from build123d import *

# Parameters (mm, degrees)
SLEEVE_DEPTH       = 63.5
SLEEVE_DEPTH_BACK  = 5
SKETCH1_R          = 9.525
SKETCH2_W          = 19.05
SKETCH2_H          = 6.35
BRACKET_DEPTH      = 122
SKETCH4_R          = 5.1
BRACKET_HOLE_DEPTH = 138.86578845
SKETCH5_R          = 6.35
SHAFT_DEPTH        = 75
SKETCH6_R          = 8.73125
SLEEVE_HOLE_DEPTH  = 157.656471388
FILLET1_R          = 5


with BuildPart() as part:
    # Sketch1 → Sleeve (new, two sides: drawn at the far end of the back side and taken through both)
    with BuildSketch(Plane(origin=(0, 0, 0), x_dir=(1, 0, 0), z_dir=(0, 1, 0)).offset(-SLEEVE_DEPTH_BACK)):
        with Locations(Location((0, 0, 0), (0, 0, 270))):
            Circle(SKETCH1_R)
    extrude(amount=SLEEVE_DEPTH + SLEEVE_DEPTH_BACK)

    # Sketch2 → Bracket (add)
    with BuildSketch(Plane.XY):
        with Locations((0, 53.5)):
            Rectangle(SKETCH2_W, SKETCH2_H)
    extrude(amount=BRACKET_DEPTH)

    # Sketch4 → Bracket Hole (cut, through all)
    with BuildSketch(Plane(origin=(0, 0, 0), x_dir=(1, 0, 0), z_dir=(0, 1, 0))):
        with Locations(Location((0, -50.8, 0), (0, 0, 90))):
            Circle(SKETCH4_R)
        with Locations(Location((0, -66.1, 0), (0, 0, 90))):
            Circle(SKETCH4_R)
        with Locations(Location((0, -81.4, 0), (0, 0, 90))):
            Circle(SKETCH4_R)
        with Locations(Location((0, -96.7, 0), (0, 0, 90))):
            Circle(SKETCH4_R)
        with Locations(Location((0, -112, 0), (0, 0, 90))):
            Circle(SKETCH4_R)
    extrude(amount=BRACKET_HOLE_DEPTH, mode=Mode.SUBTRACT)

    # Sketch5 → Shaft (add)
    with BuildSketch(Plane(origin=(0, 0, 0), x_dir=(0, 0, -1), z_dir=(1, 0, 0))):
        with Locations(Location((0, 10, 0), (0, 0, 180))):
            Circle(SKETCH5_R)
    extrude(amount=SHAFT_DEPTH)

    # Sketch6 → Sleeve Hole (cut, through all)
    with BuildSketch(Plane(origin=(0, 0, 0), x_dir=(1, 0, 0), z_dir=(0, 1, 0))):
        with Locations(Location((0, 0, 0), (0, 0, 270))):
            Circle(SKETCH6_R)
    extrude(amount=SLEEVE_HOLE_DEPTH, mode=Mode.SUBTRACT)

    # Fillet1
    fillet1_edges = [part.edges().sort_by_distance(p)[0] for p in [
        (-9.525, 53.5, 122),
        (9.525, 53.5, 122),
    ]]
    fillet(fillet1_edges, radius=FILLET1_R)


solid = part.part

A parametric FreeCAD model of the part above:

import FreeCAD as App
import Part
import Sketcher

V = App.Vector
Q = App.Units.Quantity


def edges_at(feature, points):
    """Names of the edges that pass closest to the given points."""
    edges = feature.Shape.Edges
    near = lambda p: min(range(len(edges)), key=lambda i: edges[i].distToShape(Part.Vertex(*p))[0])
    return sorted({f"Edge{near(p) + 1}" for p in points})


def add_polygon(sketch, points):
    """Adds a closed chain of lines whose ends are joined by coincident constraints."""
    first, n = sketch.GeometryCount, len(points)
    for a, b in zip(points, points[1:] + points[:1]):
        sketch.addGeometry(Part.LineSegment(App.Vector(*a, 0), App.Vector(*b, 0)), False)
    for i in range(n):
        sketch.addConstraint(Sketcher.Constraint("Coincident", first + i, 2, first + (i + 1) % n, 1))

doc = App.newDocument("Part")
body = doc.addObject("PartDesign::Body", "Body")

# Sketch on XZ plane
sketch1 = body.newObject("Sketcher::SketchObject", "Sketch")
sketch1.AttachmentSupport = (doc.getObject("XZ_Plane"), [""])
sketch1.MapMode = "FlatFace"
sketch1.addGeometry(Part.Circle(V(0, 0, 0), V(0, 0, 1), 10), False)
sketch1.addConstraint(Sketcher.Constraint("Coincident", 0, 3, -1, 1))
sketch1.addConstraint(Sketcher.Constraint("Diameter", 0, Q("0.75 in")))
pad1 = body.newObject("PartDesign::Pad", "Pad")
pad1.Profile = sketch1
pad1.Type = "TwoLengths"
pad1.Length = Q("2.5 in")
pad1.Length2 = 5
pad1.Reversed = True

# Sketch on XY plane
sketch2 = body.newObject("Sketcher::SketchObject", "Sketch001")
sketch2.AttachmentSupport = (doc.getObject("XY_Plane"), [""])
sketch2.MapMode = "FlatFace"
add_polygon(sketch2, [(-10, 57), (-10, 50), (10, 50), (10, 57)])  # lines 0-3
sketch2.addConstraint(Sketcher.Constraint("Vertical", 0))
sketch2.addConstraint(Sketcher.Constraint("Horizontal", 1))
sketch2.addConstraint(Sketcher.Constraint("Vertical", 2))
sketch2.addConstraint(Sketcher.Constraint("Horizontal", 3))
sketch2.addConstraint(Sketcher.Constraint("DistanceX", 1, 1, 1, 2, Q("0.75 in")))
sketch2.addConstraint(Sketcher.Constraint("DistanceY", 0, 2, 0, 1, Q("0.25 in")))
sketch2.addConstraint(Sketcher.Constraint("DistanceX", 0, 2, -1, 1, Q("0.375 in")))
sketch2.addConstraint(Sketcher.Constraint("DistanceY", -1, 1, 0, 2, Q("50.325 mm")))
pad2 = body.newObject("PartDesign::Pad", "Pad001")
pad2.Profile = sketch2
pad2.Length = 122

# Sketch on XZ plane
sketch3 = body.newObject("Sketcher::SketchObject", "Sketch002")
sketch3.AttachmentSupport = (doc.getObject("XZ_Plane"), [""])
sketch3.MapMode = "FlatFace"
sketch3.addGeometry(Part.Circle(V(0, 51, 0), V(0, 0, 1), 5), False)
sketch3.addGeometry(Part.Circle(V(0, 66, 0), V(0, 0, 1), 5), False)
sketch3.addGeometry(Part.Circle(V(0, 81, 0), V(0, 0, 1), 5), False)
sketch3.addGeometry(Part.Circle(V(0, 97, 0), V(0, 0, 1), 5), False)
sketch3.addGeometry(Part.Circle(V(0, 112, 0), V(0, 0, 1), 5), False)
sketch3.addConstraint(Sketcher.Constraint("Equal", 0, 1))
sketch3.addConstraint(Sketcher.Constraint("Equal", 1, 2))
sketch3.addConstraint(Sketcher.Constraint("Equal", 2, 3))
sketch3.addConstraint(Sketcher.Constraint("Equal", 3, 4))
sketch3.addConstraint(Sketcher.Constraint("PointOnObject", 0, 3, -2))
sketch3.addConstraint(Sketcher.Constraint("PointOnObject", 1, 3, -2))
sketch3.addConstraint(Sketcher.Constraint("PointOnObject", 2, 3, -2))
sketch3.addConstraint(Sketcher.Constraint("PointOnObject", 3, 3, -2))
sketch3.addConstraint(Sketcher.Constraint("PointOnObject", 4, 3, -2))
sketch3.addConstraint(Sketcher.Constraint("DistanceY", -1, 1, 0, 3, Q("2 in")))
sketch3.addConstraint(Sketcher.Constraint("Diameter", 0, Q("10.2 mm")))
sketch3.addConstraint(Sketcher.Constraint("DistanceY", -1, 1, 1, 3, Q("66.1 mm")))
sketch3.addConstraint(Sketcher.Constraint("DistanceY", -1, 1, 2, 3, Q("81.4 mm")))
sketch3.addConstraint(Sketcher.Constraint("DistanceY", -1, 1, 3, 3, Q("96.7 mm")))
sketch3.addConstraint(Sketcher.Constraint("DistanceY", -1, 1, 4, 3, Q("112 mm")))
pocket1 = body.newObject("PartDesign::Pocket", "Pocket")
pocket1.Profile = sketch3
pocket1.Type = "ThroughAll"

# Sketch on YZ plane
sketch4 = body.newObject("Sketcher::SketchObject", "Sketch003")
sketch4.AttachmentSupport = (doc.getObject("YZ_Plane"), [""])
sketch4.MapMode = "FlatFace"
sketch4.addGeometry(Part.Circle(V(10, 0, 0), V(0, 0, 1), 6), False)
sketch4.addConstraint(Sketcher.Constraint("PointOnObject", 0, 3, -1))
sketch4.addConstraint(Sketcher.Constraint("Diameter", 0, Q("0.5 in")))
sketch4.addConstraint(Sketcher.Constraint("DistanceX", -1, 1, 0, 3, Q("10 mm")))
pad3 = body.newObject("PartDesign::Pad", "Pad002")
pad3.Profile = sketch4
pad3.Length = 75

# Sketch on XZ plane
sketch5 = body.newObject("Sketcher::SketchObject", "Sketch004")
sketch5.AttachmentSupport = (doc.getObject("XZ_Plane"), [""])
sketch5.MapMode = "FlatFace"
sketch5.addGeometry(Part.Circle(V(0, 0, 0), V(0, 0, 1), 9), False)
sketch5.addConstraint(Sketcher.Constraint("Coincident", 0, 3, -1, 1))
sketch5.addConstraint(Sketcher.Constraint("Diameter", 0, Q("0.6875 in")))
pocket2 = body.newObject("PartDesign::Pocket", "Pocket001")
pocket2.Profile = sketch5
pocket2.Type = "ThroughAll"
doc.recompute()

fillet = body.newObject("PartDesign::Fillet", "Fillet")
fillet.Base = (pocket2, edges_at(pocket2, [(-9.525, 53.5, 122), (9.525, 53.5, 122)]))
fillet.Radius = 5

doc.recompute()
